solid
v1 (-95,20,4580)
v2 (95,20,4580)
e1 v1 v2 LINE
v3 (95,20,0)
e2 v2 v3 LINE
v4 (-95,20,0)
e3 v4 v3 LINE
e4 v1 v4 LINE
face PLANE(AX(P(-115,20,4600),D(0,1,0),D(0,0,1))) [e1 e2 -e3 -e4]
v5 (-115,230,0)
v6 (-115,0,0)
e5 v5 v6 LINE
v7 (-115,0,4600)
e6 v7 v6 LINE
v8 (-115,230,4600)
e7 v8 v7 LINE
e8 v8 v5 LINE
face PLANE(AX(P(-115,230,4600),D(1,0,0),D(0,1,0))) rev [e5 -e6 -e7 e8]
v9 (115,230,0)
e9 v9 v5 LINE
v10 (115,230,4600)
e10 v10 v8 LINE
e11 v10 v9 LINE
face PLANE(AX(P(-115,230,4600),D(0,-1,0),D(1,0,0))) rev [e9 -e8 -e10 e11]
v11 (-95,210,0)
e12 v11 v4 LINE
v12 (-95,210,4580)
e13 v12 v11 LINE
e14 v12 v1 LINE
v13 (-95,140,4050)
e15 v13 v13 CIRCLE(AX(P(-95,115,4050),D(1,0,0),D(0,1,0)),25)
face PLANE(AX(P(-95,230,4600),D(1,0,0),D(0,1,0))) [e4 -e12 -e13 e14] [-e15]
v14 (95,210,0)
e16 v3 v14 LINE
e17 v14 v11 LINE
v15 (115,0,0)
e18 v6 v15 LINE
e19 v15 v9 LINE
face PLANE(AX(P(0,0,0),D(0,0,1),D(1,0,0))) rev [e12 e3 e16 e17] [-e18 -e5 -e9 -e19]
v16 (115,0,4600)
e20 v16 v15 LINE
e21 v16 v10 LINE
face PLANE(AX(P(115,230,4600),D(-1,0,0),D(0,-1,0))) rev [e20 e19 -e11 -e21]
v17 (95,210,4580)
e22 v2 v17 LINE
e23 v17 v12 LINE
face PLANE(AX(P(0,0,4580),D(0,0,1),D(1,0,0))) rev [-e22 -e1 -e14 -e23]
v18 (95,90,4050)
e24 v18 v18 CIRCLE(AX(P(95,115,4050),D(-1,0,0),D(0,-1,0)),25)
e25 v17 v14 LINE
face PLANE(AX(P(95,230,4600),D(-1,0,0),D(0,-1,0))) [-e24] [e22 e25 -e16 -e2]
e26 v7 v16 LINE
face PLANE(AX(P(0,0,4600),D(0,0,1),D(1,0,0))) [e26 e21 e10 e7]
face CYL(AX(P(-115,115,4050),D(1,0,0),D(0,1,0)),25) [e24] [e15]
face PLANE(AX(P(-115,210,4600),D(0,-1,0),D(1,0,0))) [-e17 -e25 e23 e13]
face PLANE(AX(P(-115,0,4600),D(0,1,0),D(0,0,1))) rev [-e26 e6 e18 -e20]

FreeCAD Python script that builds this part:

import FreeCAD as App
import Part
import Sketcher
Q = App.Units.Quantity


def faces_at(feature, points):
    """Names of the faces that lie closest to the given points."""
    faces = feature.Shape.Faces
    near = lambda p: min(range(len(faces)), key=lambda i: faces[i].distToShape(Part.Vertex(*p))[0])
    return sorted({f"Face{near(p) + 1}" for p in points})


def add_polygon(sketch, points):
    """Adds a closed chain of lines whose ends are joined by coincident constraints."""
    first, n = sketch.GeometryCount, len(points)
    for a, b in zip(points, points[1:] + points[:1]):
        sketch.addGeometry(Part.LineSegment(App.Vector(*a, 0), App.Vector(*b, 0)), False)
    for i in range(n):
        sketch.addConstraint(Sketcher.Constraint("Coincident", first + i, 2, first + (i + 1) % n, 1))

doc = App.newDocument("Part")
params = doc.addObject("Spreadsheet::Sheet", "Params")
for row, (alias, value) in enumerate([
    ("sketch1_width", "230 mm"),
    ("pad1_length", "4600 mm"),
    ("thickness_wall", "20 mm"),
    ("sketch2_diameter", "50 mm"),
    ("pad2_length", "210 mm"),
], start=1):
    params.set(f"A{row}", alias)
    params.set(f"B{row}", "=" + value)
    params.setAlias(f"B{row}", alias)

body = doc.addObject("PartDesign::Body", "Body")

# Sketch on XY plane
sketch1 = body.newObject("Sketcher::SketchObject", "Sketch")
sketch1.AttachmentSupport = (doc.getObject("XY_Plane"), [""])
sketch1.MapMode = "FlatFace"
add_polygon(sketch1, [(-115, 230), (-115, 0), (115, 0), (115, 230)])  # lines 0-3
sketch1.addConstraint(Sketcher.Constraint("Vertical", 0))
sketch1.addConstraint(Sketcher.Constraint("Horizontal", 1))
sketch1.addConstraint(Sketcher.Constraint("Vertical", 2))
sketch1.addConstraint(Sketcher.Constraint("Horizontal", 3))
sketch1.addConstraint(Sketcher.Constraint("Symmetric", 0, 2, 1, 2, -1, 1))
sketch1.addConstraint(Sketcher.Constraint("Equal", 3, 0))
sketch1.addConstraint(Sketcher.Constraint("DistanceX", 1, 1, 1, 2, Q("230 mm")))
sketch1.setExpression("Constraints[10]", "Params.sketch1_width")
pad1 = body.newObject("PartDesign::Pad", "Pad")
pad1.Profile = sketch1
pad1.setExpression("Length", "Params.pad1_length")
doc.recompute()

thickness = body.newObject("PartDesign::Thickness", "Thickness")
thickness.Base = (pad1, faces_at(pad1, [(0, 115, 0)]))
thickness.setExpression("Value", "Params.thickness_wall")
thickness.Reversed = True
thickness.Join = "Intersection"

# Sketch on YZ plane
sketch2 = body.newObject("Sketcher::SketchObject", "Sketch001")
sketch2.AttachmentSupport = (doc.getObject("YZ_Plane"), [""])
sketch2.MapMode = "FlatFace"
sketch2.AttachmentOffset = App.Placement(App.Vector(0, 0, 115), App.Rotation())
sketch2.addGeometry(Part.Circle(App.Vector(115, 4050, 0), App.Vector(0, 0, 1), 25), False)
sketch2.addConstraint(Sketcher.Constraint("Diameter", 0, Q("50 mm")))
sketch2.addConstraint(Sketcher.Constraint("DistanceX", -1, 1, 0, 3, Q("115 mm")))
sketch2.addConstraint(Sketcher.Constraint("DistanceY", -1, 1, 0, 3, Q("4050 mm")))
sketch2.setExpression("Constraints[0]", "Params.sketch2_diameter")
pad2 = body.newObject("PartDesign::Pad", "Pad001")
pad2.Profile = sketch2
pad2.setExpression("Length", "Params.pad2_length")
pad2.Reversed = True

doc.recompute()
